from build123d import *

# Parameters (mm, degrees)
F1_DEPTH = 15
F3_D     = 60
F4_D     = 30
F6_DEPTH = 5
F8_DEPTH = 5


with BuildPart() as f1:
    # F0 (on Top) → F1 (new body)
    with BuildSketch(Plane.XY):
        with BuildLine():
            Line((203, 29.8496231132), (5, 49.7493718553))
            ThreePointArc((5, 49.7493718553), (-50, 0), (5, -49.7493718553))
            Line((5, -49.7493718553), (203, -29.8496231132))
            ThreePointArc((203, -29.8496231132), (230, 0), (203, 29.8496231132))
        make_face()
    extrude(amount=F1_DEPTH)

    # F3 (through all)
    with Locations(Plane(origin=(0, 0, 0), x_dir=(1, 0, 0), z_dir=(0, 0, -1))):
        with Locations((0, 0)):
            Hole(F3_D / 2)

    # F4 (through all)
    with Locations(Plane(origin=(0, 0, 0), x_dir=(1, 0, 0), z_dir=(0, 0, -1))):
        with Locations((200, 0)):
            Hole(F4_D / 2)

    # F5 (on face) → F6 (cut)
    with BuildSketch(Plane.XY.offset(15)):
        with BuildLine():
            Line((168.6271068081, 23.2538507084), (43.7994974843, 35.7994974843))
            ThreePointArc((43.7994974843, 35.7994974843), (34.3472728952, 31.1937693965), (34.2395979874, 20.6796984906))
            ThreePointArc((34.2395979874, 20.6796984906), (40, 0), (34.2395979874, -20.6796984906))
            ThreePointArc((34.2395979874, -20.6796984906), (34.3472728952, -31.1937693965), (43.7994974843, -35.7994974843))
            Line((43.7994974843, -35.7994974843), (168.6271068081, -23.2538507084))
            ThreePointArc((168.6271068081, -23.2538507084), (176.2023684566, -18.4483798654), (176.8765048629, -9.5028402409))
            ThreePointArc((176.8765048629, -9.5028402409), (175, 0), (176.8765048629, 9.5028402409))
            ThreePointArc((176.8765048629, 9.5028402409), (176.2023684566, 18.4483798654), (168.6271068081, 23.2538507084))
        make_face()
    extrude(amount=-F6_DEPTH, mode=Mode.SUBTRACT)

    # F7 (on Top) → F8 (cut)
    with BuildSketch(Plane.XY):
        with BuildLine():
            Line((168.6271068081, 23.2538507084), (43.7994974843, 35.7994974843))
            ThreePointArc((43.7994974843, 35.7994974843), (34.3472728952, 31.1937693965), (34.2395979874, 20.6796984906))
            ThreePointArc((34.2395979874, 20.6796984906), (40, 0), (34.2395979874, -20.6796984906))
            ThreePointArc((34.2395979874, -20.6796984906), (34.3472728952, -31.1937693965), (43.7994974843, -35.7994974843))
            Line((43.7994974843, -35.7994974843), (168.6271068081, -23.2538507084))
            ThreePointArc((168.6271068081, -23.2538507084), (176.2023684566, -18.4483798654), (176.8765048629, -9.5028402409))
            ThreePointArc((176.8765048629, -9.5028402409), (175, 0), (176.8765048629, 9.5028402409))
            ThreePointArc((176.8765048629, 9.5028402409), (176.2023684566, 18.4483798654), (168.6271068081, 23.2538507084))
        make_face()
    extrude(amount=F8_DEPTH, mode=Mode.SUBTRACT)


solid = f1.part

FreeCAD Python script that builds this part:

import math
import FreeCAD as App
import Part
import Sketcher

V = App.Vector
Q = App.Units.Quantity

doc = App.newDocument("Part")
body = doc.addObject("PartDesign::Body", "Body")

# Sketch on XY plane
sketch1 = body.newObject("Sketcher::SketchObject", "Sketch")
sketch1.AttachmentSupport = (doc.getObject("XY_Plane"), [""])
sketch1.MapMode = "FlatFace"
sketch1.addGeometry([
    Part.LineSegment(V(203, 29.849623, 0), V(5, 49.749372, 0)),
    Part.ArcOfCircle(Part.Circle(V(0, 0, 0), V(0, 0, 1), 50), math.radians(84.26083), math.radians(275.73917)),
    Part.LineSegment(V(5, -49.749372, 0), V(203, -29.849623, 0)),
    Part.ArcOfCircle(Part.Circle(V(200, 0, 0), V(0, 0, 1), 30), math.radians(-84.26083), math.radians(84.26083)),
], False)
sketch1.addConstraint([
    Sketcher.Constraint("Tangent", 0, 2, 1, 1),
    Sketcher.Constraint("Tangent", 1, 2, 2, 1),
    Sketcher.Constraint("Tangent", 2, 2, 3, 1),
    Sketcher.Constraint("Tangent", 3, 2, 0, 1),
    Sketcher.Constraint("Coincident", 1, 3, -1, 1),
    Sketcher.Constraint("PointOnObject", 3, 3, -1),
    Sketcher.Constraint("Radius", 1, Q("50 mm")),
    Sketcher.Constraint("Radius", 3, Q("30 mm")),
    Sketcher.Constraint("DistanceX", -1, 1, 3, 3, Q("200 mm")),
])
pad1 = body.newObject("PartDesign::Pad", "Pad")
pad1.Profile = sketch1
pad1.Length = 15

# Sketch on XY plane
sketch2 = body.newObject("Sketcher::SketchObject", "Sketch001")
sketch2.AttachmentSupport = (doc.getObject("XY_Plane"), [""])
sketch2.MapMode = "FlatFace"
sketch2.addGeometry(Part.Circle(V(0, 0, 0), V(0, 0, 1), 30), False)
sketch2.addConstraint([
    Sketcher.Constraint("Coincident", 0, 3, -1, 1),
    Sketcher.Constraint("Diameter", 0, Q("60 mm")),
])
doc.recompute()
hole = body.newObject("PartDesign::Hole", "Hole")
hole.Profile = sketch2
hole.ThreadType = "None"
hole.Diameter = 60
hole.DepthType = "ThroughAll"
hole.Reversed = True

# Sketch on XY plane
sketch3 = body.newObject("Sketcher::SketchObject", "Sketch002")
sketch3.AttachmentSupport = (doc.getObject("XY_Plane"), [""])
sketch3.MapMode = "FlatFace"
sketch3.addGeometry(Part.Circle(V(200, 0, 0), V(0, 0, 1), 15), False)
sketch3.addConstraint([
    Sketcher.Constraint("PointOnObject", 0, 3, -1),
    Sketcher.Constraint("Diameter", 0, Q("30 mm")),
    Sketcher.Constraint("DistanceX", -1, 1, 0, 3, Q("200 mm")),
])
doc.recompute()
hole2 = body.newObject("PartDesign::Hole", "Hole001")
hole2.Profile = sketch3
hole2.ThreadType = "None"
hole2.Diameter = 30
hole2.DepthType = "ThroughAll"
hole2.Reversed = True

# Sketch on XY plane
sketch4 = body.newObject("Sketcher::SketchObject", "Sketch003")
sketch4.AttachmentSupport = (doc.getObject("XY_Plane"), [""])
sketch4.MapMode = "FlatFace"
sketch4.AttachmentOffset = App.Placement(V(0, 0, 15), App.Rotation())
sketch4.addGeometry([
    Part.LineSegment(V(168.627107, 23.253851, 0), V(43.799497, 35.799497, 0)),  # 0
    Part.ArcOfCircle(Part.Circle(V(42.799497, 25.849623, 0), V(0, 0, 1), 10), math.radians(84.26083), math.radians(211.130727)),  # 1
    Part.ArcOfCircle(Part.Circle(V(0, 0, 0), V(0, 0, 1), 40), math.radians(-31.130727), math.radians(31.130727)),  # 2
    Part.ArcOfCircle(Part.Circle(V(42.799497, -25.849623, 0), V(0, 0, 1), 10), math.radians(148.869273), math.radians(275.73917)),  # 3
    Part.LineSegment(V(43.799497, -35.799497, 0), V(168.627107, -23.253851, 0)),  # 4
    Part.ArcOfCircle(Part.Circle(V(167.627107, -13.303976, 0), V(0, 0, 1), 10), math.radians(-84.26083), math.radians(22.34072)),  # 5
    Part.ArcOfCircle(Part.Circle(V(200, 0, 0), V(0, 0, 1), 25), math.radians(157.65928), math.radians(202.34072)),  # 6
    Part.ArcOfCircle(Part.Circle(V(167.627107, 13.303976, 0), V(0, 0, 1), 10), math.radians(-22.34072), math.radians(84.26083)),  # 7
], False)
sketch4.addConstraint([
    Sketcher.Constraint("Tangent", 0, 2, 1, 1),
    Sketcher.Constraint("Tangent", 1, 2, 2, 2),
    Sketcher.Constraint("Tangent", 2, 1, 3, 1),
    Sketcher.Constraint("Tangent", 3, 2, 4, 1),
    Sketcher.Constraint("Tangent", 4, 2, 5, 1),
    Sketcher.Constraint("Tangent", 5, 2, 6, 2),
    Sketcher.Constraint("Tangent", 6, 1, 7, 1),
    Sketcher.Constraint("Tangent", 7, 2, 0, 1),
    Sketcher.Constraint("Coincident", 2, 3, -1, 1),
    Sketcher.Constraint("Equal", 1, 3),
    Sketcher.Constraint("Equal", 3, 5),
    Sketcher.Constraint("Equal", 5, 7),
    Sketcher.Constraint("Symmetric", 5, 3, 7, 3, -1),
    Sketcher.Constraint("Vertical", 1, 3, 3, 3),
    Sketcher.Constraint("Radius", 1, Q("10 mm")),
    Sketcher.Constraint("Radius", 2, Q("40 mm")),
    Sketcher.Constraint("Radius", 6, Q("25 mm")),
    Sketcher.Constraint("DistanceX", -1, 1, 6, 3, Q("200 mm")),
    Sketcher.Constraint("DistanceX", 1, 3, 0, 2, Q("1 mm")),
    Sketcher.Constraint("DistanceY", -1, 1, 1, 2, Q("20.679698 mm")),
])
pocket1 = body.newObject("PartDesign::Pocket", "Pocket")
pocket1.Profile = sketch4
pocket1.Length = 5

# Sketch on XY plane
sketch5 = body.newObject("Sketcher::SketchObject", "Sketch004")
sketch5.AttachmentSupport = (doc.getObject("XY_Plane"), [""])
sketch5.MapMode = "FlatFace"
sketch5.addGeometry([
    Part.LineSegment(V(168.627107, 23.253851, 0), V(43.799497, 35.799497, 0)),  # 0
    Part.ArcOfCircle(Part.Circle(V(42.799497, 25.849623, 0), V(0, 0, 1), 10), math.radians(84.26083), math.radians(211.130727)),  # 1
    Part.ArcOfCircle(Part.Circle(V(0, 0, 0), V(0, 0, 1), 40), math.radians(-31.130727), math.radians(31.130727)),  # 2
    Part.ArcOfCircle(Part.Circle(V(42.799497, -25.849623, 0), V(0, 0, 1), 10), math.radians(148.869273), math.radians(275.73917)),  # 3
    Part.LineSegment(V(43.799497, -35.799497, 0), V(168.627107, -23.253851, 0)),  # 4
    Part.ArcOfCircle(Part.Circle(V(167.627107, -13.303976, 0), V(0, 0, 1), 10), math.radians(-84.26083), math.radians(22.34072)),  # 5
    Part.ArcOfCircle(Part.Circle(V(200, 0, 0), V(0, 0, 1), 25), math.radians(157.65928), math.radians(202.34072)),  # 6
    Part.ArcOfCircle(Part.Circle(V(167.627107, 13.303976, 0), V(0, 0, 1), 10), math.radians(-22.34072), math.radians(84.26083)),  # 7
], False)
sketch5.addConstraint([
    Sketcher.Constraint("Tangent", 0, 2, 1, 1),
    Sketcher.Constraint("Tangent", 1, 2, 2, 2),
    Sketcher.Constraint("Tangent", 2, 1, 3, 1),
    Sketcher.Constraint("Tangent", 3, 2, 4, 1),
    Sketcher.Constraint("Tangent", 4, 2, 5, 1),
    Sketcher.Constraint("Tangent", 5, 2, 6, 2),
    Sketcher.Constraint("Tangent", 6, 1, 7, 1),
    Sketcher.Constraint("Tangent", 7, 2, 0, 1),
    Sketcher.Constraint("Coincident", 2, 3, -1, 1),
    Sketcher.Constraint("Equal", 1, 3),
    Sketcher.Constraint("Equal", 3, 5),
    Sketcher.Constraint("Equal", 5, 7),
    Sketcher.Constraint("Symmetric", 5, 3, 7, 3, -1),
    Sketcher.Constraint("Vertical", 1, 3, 3, 3),
    Sketcher.Constraint("Radius", 1, Q("10 mm")),
    Sketcher.Constraint("Radius", 2, Q("40 mm")),
    Sketcher.Constraint("Radius", 6, Q("25 mm")),
    Sketcher.Constraint("DistanceX", -1, 1, 6, 3, Q("200 mm")),
    Sketcher.Constraint("DistanceX", 1, 3, 0, 2, Q("1 mm")),
    Sketcher.Constraint("DistanceY", -1, 1, 1, 2, Q("20.679698 mm")),
])
pocket2 = body.newObject("PartDesign::Pocket", "Pocket001")
pocket2.Profile = sketch5
pocket2.Length = 5
pocket2.Reversed = True

doc.recompute()
